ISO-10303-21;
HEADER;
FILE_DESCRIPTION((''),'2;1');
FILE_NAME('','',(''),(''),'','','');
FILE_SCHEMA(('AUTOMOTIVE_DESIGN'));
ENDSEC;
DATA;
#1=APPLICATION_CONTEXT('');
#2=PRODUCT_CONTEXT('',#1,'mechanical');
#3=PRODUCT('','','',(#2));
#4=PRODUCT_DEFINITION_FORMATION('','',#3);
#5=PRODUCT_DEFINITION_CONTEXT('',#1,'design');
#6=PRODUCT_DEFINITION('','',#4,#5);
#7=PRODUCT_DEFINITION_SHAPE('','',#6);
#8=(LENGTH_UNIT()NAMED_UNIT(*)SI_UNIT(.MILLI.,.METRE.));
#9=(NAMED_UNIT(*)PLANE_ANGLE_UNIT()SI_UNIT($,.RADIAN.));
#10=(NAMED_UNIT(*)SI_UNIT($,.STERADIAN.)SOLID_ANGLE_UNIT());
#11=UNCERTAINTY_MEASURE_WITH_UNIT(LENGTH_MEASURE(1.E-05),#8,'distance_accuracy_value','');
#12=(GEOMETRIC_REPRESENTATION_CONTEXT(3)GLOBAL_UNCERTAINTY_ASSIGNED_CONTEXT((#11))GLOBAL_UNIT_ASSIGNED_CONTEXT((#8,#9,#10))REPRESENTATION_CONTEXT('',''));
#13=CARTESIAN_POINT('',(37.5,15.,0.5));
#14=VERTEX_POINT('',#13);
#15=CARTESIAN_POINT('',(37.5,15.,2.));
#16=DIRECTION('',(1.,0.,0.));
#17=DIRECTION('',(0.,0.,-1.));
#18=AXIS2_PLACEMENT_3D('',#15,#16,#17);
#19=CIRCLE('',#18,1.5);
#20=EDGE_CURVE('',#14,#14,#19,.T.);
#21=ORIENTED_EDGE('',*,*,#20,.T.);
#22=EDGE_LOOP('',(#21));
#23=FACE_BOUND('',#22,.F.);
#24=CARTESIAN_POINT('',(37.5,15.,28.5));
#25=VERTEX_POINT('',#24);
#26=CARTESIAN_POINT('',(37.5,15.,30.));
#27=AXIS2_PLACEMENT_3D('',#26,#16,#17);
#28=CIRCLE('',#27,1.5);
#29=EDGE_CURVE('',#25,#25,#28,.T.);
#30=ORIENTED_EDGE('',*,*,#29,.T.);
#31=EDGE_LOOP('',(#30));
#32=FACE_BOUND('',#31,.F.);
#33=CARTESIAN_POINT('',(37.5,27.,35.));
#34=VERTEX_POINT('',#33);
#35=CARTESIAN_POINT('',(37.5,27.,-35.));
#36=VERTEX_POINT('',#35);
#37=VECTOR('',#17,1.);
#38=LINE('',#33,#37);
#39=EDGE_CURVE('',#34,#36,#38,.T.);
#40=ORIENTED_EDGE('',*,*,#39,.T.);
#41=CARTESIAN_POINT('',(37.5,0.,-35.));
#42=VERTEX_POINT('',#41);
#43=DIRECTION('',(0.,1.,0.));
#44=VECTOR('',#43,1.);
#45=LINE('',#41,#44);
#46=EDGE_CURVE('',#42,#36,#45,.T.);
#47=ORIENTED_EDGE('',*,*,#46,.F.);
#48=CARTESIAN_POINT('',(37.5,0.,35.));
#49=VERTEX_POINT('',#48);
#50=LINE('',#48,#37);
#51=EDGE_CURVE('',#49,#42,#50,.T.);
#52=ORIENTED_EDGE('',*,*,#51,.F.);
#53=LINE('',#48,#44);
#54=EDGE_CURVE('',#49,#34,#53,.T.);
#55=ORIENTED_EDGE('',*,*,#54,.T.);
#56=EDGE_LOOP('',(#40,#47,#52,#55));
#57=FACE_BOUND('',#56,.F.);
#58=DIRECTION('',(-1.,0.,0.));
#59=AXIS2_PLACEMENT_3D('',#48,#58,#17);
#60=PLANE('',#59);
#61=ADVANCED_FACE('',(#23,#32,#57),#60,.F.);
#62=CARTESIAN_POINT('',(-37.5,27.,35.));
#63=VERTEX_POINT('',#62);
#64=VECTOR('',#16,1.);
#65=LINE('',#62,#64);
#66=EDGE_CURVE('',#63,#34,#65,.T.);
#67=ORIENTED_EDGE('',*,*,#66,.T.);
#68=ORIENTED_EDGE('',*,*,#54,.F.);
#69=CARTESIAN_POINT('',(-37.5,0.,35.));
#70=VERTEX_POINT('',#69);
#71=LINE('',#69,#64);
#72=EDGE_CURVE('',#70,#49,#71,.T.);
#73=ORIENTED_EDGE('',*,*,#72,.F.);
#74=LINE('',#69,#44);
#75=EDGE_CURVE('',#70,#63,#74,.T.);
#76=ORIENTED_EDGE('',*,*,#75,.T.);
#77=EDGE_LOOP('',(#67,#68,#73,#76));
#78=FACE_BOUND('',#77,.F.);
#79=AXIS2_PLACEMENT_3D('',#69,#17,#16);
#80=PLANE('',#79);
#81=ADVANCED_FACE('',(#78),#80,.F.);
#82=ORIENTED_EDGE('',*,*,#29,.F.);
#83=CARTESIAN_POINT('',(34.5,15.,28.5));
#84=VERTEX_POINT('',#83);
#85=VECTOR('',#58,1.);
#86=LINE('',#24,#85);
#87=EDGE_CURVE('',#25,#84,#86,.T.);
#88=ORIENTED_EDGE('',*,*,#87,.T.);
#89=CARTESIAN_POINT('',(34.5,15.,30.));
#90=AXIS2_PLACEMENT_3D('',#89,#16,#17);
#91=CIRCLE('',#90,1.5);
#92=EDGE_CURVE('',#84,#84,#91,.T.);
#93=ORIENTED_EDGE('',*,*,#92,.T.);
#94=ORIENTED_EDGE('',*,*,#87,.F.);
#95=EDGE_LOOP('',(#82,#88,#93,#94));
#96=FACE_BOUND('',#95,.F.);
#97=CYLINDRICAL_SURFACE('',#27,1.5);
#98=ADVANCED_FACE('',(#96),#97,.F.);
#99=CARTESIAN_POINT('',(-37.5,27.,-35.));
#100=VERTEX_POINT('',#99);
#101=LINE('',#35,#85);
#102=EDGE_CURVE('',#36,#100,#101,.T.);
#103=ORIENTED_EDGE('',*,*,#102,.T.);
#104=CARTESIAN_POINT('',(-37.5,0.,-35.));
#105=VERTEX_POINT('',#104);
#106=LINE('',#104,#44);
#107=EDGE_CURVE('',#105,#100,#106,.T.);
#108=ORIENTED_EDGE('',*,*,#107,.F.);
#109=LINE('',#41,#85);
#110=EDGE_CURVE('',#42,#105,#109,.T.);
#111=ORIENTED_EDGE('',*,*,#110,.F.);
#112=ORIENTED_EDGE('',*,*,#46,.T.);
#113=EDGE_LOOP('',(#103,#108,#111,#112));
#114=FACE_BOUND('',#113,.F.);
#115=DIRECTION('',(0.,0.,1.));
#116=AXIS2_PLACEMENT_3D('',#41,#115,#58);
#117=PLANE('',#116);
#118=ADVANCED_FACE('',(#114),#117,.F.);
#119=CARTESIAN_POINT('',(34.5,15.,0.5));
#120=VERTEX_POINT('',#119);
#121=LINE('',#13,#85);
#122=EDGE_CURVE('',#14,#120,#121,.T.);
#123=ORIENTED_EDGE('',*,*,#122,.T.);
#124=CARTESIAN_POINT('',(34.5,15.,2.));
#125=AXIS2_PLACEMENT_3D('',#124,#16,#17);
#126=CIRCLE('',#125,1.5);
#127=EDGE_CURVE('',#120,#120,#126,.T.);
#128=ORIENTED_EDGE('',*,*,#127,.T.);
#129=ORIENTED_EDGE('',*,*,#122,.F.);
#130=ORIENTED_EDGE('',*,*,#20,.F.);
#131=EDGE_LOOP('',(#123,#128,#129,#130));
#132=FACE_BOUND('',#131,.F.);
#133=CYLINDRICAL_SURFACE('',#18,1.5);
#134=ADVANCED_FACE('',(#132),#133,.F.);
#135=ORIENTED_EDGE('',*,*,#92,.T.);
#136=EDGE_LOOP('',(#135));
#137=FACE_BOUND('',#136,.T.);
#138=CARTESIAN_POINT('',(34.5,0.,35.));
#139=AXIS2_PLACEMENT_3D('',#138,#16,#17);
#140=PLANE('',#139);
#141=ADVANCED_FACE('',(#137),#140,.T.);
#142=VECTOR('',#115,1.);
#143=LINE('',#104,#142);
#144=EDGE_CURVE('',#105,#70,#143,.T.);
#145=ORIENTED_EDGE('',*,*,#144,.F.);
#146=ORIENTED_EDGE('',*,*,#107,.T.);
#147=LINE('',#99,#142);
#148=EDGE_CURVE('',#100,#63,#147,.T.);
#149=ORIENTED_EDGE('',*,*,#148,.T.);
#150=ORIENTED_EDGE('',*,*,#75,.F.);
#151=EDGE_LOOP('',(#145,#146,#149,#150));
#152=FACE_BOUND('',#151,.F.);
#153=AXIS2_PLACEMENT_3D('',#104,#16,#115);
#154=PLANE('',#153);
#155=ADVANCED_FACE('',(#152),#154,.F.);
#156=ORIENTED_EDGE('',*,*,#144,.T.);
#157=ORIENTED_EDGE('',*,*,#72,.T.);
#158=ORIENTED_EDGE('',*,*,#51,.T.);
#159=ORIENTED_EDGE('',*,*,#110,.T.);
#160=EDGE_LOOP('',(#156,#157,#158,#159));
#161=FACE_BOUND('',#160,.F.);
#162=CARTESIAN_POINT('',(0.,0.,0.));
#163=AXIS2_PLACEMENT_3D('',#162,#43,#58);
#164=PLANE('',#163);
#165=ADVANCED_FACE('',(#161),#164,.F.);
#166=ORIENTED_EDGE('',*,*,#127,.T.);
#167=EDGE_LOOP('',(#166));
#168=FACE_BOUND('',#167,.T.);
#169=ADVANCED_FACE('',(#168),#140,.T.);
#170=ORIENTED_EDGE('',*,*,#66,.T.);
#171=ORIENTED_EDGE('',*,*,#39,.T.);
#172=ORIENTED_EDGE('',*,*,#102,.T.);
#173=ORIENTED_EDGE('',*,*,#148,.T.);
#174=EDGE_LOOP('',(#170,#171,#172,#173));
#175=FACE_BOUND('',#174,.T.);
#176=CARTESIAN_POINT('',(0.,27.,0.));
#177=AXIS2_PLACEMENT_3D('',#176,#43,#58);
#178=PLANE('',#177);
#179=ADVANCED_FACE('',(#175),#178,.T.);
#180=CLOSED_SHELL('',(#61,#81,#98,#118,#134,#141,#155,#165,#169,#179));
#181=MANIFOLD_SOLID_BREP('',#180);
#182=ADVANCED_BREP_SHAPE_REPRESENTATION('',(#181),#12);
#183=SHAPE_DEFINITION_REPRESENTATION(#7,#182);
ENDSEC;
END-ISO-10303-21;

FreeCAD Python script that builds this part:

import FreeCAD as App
import Part
import Sketcher
from FreeCAD import Vector
Q = App.Units.Quantity


def add_polygon(sketch, points):
    """Adds a closed chain of lines whose ends are joined by coincident constraints."""
    first, n = sketch.GeometryCount, len(points)
    for a, b in zip(points, points[1:] + points[:1]):
        sketch.addGeometry(Part.LineSegment(App.Vector(*a, 0), App.Vector(*b, 0)), False)
    for i in range(n):
        sketch.addConstraint(Sketcher.Constraint("Coincident", first + i, 2, first + (i + 1) % n, 1))

doc = App.newDocument("Part")
body = doc.addObject("PartDesign::Body", "Body")

# Sketch on XZ plane
sketch1 = body.newObject("Sketcher::SketchObject", "Sketch")
sketch1.AttachmentSupport = (doc.getObject("XZ_Plane"), [""])
sketch1.MapMode = "FlatFace"
add_polygon(sketch1, [(-38, -35), (-38, 35), (38, 35), (38, -35)])  # lines 0-3
sketch1.addConstraint([
    Sketcher.Constraint("Vertical", 0),
    Sketcher.Constraint("Horizontal", 1),
    Sketcher.Constraint("Vertical", 2),
    Sketcher.Constraint("Horizontal", 3),
    Sketcher.Constraint("Symmetric", 0, 2, 2, 2, -1, 1),
    Sketcher.Constraint("DistanceX", 1, 1, 1, 2, Q("75 mm")),
    Sketcher.Constraint("DistanceY", 0, 1, 0, 2, Q("70 mm")),
])
pad1 = body.newObject("PartDesign::Pad", "Pad")
pad1.Profile = sketch1
pad1.Length = 27
pad1.Reversed = True

# Sketch on YZ plane
sketch2 = body.newObject("Sketcher::SketchObject", "Sketch001")
sketch2.AttachmentSupport = (doc.getObject("YZ_Plane"), [""])
sketch2.MapMode = "FlatFace"
sketch2.AttachmentOffset = App.Placement(Vector(0, 0, 37.5), App.Rotation())
sketch2.addGeometry([
    Part.Circle(Vector(15, 30, 0), Vector(0, 0, 1), 1.5),
    Part.Circle(Vector(15, 2, 0), Vector(0, 0, 1), 1.5),
], False)
sketch2.addConstraint([
    Sketcher.Constraint("Equal", 0, 1),
    Sketcher.Constraint("Vertical", 0, 3, 1, 3),
    Sketcher.Constraint("Diameter", 0, Q("3 mm")),
    Sketcher.Constraint("DistanceY", 1, 3, 0, 3, Q("28 mm")),
    Sketcher.Constraint("DistanceX", -1, 1, 0, 3, Q("15 mm")),
    Sketcher.Constraint("DistanceY", -1, 1, 0, 3, Q("30 mm")),
])
pocket1 = body.newObject("PartDesign::Pocket", "Pocket")
pocket1.Profile = sketch2
pocket1.Length = 3

doc.recompute()
